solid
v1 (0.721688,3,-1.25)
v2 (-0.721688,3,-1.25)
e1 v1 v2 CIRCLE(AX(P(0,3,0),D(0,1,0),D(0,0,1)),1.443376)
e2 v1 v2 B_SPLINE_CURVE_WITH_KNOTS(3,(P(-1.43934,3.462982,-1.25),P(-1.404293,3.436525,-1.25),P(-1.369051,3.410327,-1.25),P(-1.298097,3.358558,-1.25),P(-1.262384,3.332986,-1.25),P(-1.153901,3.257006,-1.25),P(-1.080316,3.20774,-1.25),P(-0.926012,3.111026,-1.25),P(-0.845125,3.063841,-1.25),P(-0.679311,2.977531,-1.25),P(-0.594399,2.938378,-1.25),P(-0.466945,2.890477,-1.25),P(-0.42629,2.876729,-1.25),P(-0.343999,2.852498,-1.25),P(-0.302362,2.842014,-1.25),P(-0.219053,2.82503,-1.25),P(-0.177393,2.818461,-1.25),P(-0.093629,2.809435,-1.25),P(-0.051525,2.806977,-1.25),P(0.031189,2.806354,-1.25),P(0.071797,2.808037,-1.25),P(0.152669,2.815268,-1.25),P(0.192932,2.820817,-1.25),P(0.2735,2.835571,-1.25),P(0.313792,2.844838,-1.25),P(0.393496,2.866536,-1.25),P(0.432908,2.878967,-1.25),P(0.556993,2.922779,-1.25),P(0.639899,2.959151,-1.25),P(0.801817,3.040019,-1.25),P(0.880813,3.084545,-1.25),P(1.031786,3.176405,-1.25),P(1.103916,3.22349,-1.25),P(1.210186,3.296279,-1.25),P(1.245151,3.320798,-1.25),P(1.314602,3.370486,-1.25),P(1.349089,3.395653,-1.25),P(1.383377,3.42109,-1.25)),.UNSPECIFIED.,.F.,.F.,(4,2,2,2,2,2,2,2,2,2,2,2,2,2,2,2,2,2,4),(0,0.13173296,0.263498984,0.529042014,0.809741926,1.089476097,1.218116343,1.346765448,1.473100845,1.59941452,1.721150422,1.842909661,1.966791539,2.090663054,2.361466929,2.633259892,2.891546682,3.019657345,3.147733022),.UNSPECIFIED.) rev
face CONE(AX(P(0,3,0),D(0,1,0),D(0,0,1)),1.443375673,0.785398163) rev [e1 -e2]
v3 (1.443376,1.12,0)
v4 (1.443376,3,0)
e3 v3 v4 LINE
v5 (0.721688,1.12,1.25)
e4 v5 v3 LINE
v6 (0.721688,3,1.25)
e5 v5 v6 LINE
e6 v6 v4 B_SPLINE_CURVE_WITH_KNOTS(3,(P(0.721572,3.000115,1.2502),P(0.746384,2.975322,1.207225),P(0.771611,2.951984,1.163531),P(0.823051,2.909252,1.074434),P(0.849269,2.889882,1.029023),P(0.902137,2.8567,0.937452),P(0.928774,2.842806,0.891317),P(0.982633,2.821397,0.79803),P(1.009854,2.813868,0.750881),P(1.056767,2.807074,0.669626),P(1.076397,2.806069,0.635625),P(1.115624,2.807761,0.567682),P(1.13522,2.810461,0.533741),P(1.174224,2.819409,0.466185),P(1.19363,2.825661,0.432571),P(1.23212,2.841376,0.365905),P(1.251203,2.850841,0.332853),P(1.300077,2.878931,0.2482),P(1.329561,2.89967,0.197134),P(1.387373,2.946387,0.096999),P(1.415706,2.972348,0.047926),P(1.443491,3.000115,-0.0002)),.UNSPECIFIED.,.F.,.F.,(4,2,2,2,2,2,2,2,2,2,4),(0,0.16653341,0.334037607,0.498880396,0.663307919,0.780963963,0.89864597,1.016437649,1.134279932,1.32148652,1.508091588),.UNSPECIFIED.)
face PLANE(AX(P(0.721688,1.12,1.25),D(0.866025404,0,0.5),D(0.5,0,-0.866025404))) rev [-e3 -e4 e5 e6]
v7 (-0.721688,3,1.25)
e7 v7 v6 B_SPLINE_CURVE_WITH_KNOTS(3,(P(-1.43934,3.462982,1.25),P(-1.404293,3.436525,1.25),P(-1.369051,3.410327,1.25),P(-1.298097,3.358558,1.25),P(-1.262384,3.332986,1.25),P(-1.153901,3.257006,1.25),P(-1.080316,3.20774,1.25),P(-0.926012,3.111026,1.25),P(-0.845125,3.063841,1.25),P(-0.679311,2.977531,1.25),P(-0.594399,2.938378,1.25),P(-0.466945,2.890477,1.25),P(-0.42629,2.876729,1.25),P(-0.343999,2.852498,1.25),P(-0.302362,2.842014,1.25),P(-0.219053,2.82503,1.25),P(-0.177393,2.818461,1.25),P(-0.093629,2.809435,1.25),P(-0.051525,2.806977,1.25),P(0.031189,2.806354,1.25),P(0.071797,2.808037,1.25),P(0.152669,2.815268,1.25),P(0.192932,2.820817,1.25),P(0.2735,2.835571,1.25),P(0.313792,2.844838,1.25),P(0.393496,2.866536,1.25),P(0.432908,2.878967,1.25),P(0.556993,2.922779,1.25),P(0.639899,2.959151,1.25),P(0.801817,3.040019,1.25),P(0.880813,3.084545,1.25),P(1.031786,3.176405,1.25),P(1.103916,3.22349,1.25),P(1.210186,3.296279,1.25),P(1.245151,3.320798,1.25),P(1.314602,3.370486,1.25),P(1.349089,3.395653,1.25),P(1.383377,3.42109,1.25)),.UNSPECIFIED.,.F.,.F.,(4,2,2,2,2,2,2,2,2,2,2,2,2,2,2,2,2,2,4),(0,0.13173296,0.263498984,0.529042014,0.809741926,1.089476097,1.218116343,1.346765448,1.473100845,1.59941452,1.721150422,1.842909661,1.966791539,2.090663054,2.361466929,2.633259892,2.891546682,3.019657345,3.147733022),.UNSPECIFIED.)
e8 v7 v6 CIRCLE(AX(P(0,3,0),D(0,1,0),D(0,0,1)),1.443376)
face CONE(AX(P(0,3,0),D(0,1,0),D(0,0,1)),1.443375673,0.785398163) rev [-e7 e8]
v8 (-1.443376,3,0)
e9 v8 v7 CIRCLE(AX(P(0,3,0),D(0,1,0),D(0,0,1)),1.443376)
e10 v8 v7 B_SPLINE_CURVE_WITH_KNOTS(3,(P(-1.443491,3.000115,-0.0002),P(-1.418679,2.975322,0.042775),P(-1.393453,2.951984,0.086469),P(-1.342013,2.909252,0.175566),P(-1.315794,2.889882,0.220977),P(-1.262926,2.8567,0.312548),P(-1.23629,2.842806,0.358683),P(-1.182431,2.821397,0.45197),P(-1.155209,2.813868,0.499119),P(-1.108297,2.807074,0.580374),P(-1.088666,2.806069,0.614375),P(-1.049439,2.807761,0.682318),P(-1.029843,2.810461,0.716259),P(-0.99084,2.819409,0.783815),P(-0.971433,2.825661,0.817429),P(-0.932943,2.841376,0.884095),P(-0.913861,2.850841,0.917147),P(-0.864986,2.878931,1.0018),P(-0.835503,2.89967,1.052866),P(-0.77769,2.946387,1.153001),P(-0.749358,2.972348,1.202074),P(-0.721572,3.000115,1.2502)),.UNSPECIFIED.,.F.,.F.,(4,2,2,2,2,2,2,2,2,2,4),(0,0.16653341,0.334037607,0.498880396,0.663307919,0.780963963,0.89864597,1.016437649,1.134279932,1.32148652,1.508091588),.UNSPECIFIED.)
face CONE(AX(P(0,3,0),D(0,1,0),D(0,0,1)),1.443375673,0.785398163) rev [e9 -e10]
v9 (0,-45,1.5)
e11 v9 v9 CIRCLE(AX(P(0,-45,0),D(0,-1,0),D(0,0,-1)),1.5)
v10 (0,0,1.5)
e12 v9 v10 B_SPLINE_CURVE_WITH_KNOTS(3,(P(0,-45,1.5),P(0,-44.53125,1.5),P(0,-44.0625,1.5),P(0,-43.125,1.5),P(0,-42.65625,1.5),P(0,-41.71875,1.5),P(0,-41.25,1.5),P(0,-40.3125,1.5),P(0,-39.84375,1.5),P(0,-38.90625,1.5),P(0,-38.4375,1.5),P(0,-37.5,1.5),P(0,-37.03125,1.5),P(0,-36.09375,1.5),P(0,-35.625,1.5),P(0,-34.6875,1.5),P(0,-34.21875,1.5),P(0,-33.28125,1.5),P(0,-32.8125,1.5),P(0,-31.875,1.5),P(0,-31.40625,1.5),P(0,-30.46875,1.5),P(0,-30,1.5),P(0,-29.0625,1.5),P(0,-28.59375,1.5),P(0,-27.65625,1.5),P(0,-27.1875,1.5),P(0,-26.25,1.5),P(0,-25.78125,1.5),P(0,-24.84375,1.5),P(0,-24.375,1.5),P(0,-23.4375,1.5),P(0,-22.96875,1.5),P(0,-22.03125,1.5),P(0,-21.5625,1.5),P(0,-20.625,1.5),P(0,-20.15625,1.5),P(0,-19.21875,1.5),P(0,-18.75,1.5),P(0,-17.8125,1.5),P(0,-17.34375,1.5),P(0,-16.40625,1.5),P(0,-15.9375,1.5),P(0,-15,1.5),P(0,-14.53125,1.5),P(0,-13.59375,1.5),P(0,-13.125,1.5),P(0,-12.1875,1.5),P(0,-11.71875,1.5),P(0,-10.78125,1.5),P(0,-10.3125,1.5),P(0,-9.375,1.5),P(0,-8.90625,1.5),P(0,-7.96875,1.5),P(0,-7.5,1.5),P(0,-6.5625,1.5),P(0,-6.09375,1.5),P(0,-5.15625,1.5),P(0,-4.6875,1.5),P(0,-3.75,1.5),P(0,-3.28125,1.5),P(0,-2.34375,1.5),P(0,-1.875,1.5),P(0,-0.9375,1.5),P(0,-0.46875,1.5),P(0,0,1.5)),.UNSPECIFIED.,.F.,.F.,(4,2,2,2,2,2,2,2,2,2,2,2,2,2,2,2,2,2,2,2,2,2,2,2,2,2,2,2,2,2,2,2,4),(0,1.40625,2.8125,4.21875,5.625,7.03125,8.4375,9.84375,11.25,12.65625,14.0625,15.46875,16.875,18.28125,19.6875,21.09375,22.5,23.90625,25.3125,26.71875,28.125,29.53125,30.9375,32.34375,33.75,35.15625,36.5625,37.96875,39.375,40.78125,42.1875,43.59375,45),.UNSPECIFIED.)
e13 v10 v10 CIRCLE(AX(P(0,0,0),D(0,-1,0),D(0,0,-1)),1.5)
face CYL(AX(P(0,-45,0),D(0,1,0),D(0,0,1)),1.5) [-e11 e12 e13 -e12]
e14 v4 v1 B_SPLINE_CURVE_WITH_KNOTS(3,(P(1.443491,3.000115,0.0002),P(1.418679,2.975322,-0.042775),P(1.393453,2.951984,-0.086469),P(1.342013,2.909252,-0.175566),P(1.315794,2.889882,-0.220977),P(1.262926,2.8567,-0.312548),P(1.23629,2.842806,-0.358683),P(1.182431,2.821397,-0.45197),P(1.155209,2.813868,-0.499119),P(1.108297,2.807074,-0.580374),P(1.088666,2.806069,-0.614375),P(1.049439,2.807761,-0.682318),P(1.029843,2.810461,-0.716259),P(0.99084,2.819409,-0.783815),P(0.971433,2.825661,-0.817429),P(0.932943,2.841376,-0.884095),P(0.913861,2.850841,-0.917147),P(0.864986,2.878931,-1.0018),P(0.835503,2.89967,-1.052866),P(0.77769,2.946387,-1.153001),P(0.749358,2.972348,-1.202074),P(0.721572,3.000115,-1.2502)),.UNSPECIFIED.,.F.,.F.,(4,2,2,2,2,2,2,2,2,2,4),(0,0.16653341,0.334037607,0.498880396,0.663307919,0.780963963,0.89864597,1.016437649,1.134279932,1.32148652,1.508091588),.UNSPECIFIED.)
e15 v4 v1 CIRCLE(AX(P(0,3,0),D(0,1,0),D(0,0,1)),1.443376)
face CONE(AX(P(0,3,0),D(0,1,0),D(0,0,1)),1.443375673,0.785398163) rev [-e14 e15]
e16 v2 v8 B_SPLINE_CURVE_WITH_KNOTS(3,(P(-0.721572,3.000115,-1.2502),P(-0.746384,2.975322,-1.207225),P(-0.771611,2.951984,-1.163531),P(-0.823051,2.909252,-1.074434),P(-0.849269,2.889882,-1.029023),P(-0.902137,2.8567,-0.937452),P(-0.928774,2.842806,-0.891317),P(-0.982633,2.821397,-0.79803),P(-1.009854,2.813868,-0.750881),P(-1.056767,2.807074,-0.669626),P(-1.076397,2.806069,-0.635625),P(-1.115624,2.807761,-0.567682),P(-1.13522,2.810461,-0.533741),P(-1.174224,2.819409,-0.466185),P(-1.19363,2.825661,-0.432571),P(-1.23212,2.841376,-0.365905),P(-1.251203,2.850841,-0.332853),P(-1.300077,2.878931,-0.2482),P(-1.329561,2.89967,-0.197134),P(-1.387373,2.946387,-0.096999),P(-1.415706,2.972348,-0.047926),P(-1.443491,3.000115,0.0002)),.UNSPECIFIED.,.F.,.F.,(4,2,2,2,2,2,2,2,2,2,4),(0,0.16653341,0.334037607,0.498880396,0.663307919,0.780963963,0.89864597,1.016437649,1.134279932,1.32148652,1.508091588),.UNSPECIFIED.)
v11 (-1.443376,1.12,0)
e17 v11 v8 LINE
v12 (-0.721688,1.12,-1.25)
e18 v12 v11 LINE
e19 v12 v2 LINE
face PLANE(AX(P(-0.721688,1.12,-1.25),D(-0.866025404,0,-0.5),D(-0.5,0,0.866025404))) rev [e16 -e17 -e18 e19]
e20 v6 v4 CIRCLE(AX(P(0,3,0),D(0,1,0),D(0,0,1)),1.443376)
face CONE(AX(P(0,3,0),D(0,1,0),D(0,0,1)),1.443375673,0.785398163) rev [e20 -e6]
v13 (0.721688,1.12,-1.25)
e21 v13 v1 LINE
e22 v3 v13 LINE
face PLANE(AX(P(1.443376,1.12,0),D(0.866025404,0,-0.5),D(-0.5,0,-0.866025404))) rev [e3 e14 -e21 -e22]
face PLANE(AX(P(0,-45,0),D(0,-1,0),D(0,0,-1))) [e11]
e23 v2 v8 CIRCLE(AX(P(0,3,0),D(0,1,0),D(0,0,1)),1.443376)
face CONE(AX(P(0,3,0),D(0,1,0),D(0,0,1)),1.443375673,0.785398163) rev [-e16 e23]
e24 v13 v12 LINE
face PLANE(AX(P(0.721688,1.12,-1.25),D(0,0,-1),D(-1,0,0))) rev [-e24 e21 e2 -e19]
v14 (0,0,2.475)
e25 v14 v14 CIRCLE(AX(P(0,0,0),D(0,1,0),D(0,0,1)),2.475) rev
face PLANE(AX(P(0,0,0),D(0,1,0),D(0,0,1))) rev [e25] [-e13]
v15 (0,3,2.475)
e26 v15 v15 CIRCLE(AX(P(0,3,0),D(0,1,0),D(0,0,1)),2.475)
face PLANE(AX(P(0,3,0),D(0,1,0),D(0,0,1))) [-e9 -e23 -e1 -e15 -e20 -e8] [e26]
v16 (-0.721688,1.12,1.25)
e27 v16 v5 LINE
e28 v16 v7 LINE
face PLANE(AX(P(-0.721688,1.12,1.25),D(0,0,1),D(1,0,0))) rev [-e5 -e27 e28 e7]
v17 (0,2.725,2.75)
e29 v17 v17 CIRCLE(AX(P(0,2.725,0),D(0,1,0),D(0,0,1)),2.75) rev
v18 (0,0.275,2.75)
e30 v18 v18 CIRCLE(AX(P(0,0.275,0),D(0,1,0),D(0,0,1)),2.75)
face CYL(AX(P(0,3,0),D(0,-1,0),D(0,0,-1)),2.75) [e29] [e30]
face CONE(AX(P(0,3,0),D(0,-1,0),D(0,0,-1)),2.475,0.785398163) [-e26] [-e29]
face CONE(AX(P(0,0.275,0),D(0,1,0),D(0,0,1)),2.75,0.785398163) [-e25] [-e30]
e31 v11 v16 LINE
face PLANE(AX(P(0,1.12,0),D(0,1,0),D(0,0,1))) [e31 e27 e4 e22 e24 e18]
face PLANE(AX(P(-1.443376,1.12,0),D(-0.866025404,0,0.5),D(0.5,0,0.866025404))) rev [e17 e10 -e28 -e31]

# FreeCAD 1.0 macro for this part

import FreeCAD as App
import Part
import Sketcher
from FreeCAD import Vector
Q = App.Units.Quantity


def edges_at(feature, points):
    """Names of the edges that pass closest to the given points."""
    edges = feature.Shape.Edges
    near = lambda p: min(range(len(edges)), key=lambda i: edges[i].distToShape(Part.Vertex(*p))[0])
    return sorted({f"Edge{near(p) + 1}" for p in points})


def add_polygon(sketch, points):
    """Adds a closed chain of lines whose ends are joined by coincident constraints."""
    first, n = sketch.GeometryCount, len(points)
    for a, b in zip(points, points[1:] + points[:1]):
        sketch.addGeometry(Part.LineSegment(App.Vector(*a, 0), App.Vector(*b, 0)), False)
    for i in range(n):
        sketch.addConstraint(Sketcher.Constraint("Coincident", first + i, 2, first + (i + 1) % n, 1))

doc = App.newDocument("Part")
params = doc.addObject("Spreadsheet::Sheet", "Params")
for row, (alias, value) in enumerate([
    ("sketch1_diameter", "5.5 mm"),
    ("pad1_length", "3 mm"),
    ("pocket1_length", "1.88 mm"),
    ("groove_angle", "360 deg"),
    ("chamfer_size", "0.275 mm"),
    ("sketch4_diameter", "3 mm"),
    ("pad2_length", "45 mm"),
], start=1):
    params.set(f"A{row}", alias)
    params.set(f"B{row}", "=" + value)
    params.setAlias(f"B{row}", alias)

body = doc.addObject("PartDesign::Body", "Body")

sketch1 = doc.addObject("Sketcher::SketchObject", "Sketch")
body.addObject(sketch1)
sketch1.AttachmentSupport = (doc.XZ_Plane, [""])
sketch1.MapMode = "FlatFace"
sketch1.addGeometry(Part.Circle(Vector(0, 0, 0), Vector(0, 0, 1), 2.75), False)
sketch1.addConstraint([
    Sketcher.Constraint("Coincident", 0, 3, -1, 1),
    Sketcher.Constraint("Diameter", 0, Q("5.5 mm")),
])
sketch1.setExpression("Constraints[1]", "Params.sketch1_diameter")
pad1 = doc.addObject("PartDesign::Pad", "Pad")
body.addObject(pad1)
pad1.Profile = sketch1
pad1.setExpression("Length", "Params.pad1_length")
pad1.Reversed = True

sketch2 = doc.addObject("Sketcher::SketchObject", "Sketch001")
body.addObject(sketch2)
sketch2.AttachmentSupport = (doc.XZ_Plane, [""])
sketch2.MapMode = "FlatFace"
sketch2.AttachmentOffset = App.Placement(Vector(0, 0, -3), App.Rotation())
add_polygon(sketch2, [(0.721688, -1.25), (-0.721688, -1.25), (-1.443376, 0), (-0.721688, 1.25), (0.721688, 1.25), (1.443376, 0)])
sketch2.addConstraint([
    Sketcher.Constraint("Horizontal", 0),
    Sketcher.Constraint("Horizontal", 3),
    Sketcher.Constraint("Symmetric", 0, 2, 3, 2, -1, 1),
    Sketcher.Constraint("Symmetric", 1, 2, 4, 2, -1, 1),
    Sketcher.Constraint("PointOnObject", 1, 2, -1),
    Sketcher.Constraint("Parallel", 2, 5),
    Sketcher.Constraint("Vertical", 0, 2, 2, 2),
    Sketcher.Constraint("Angle", 1, Q("120 deg")),
    Sketcher.Constraint("DistanceY", 0, 2, 2, 2, Q("2.5 mm")),
    Sketcher.Constraint("DistanceX", 0, 2, 0, 1, Q("1.443376 mm")),
])
pocket1 = doc.addObject("PartDesign::Pocket", "Pocket")
body.addObject(pocket1)
pocket1.Profile = sketch2
pocket1.setExpression("Length", "Params.pocket1_length")
pocket1.Reversed = True

sketch3 = doc.addObject("Sketcher::SketchObject", "Sketch002")
body.addObject(sketch3)
sketch3.AttachmentSupport = (doc.YZ_Plane, [""])
sketch3.MapMode = "FlatFace"
add_polygon(sketch3, [(3, 0), (3, 1.443376), (1.556624, 0)])
sketch3.addConstraint([
    Sketcher.Constraint("Vertical", 0),
    Sketcher.Constraint("Horizontal", 2),
    Sketcher.Constraint("PointOnObject", 1, 2, -1),
    Sketcher.Constraint("Equal", 2, 0),
    Sketcher.Constraint("DistanceX", -1, 1, 0, 2, Q("3 mm")),
    Sketcher.Constraint("Distance", 1, Q("2.041241 mm")),
])
groove = doc.addObject("PartDesign::Groove", "Groove")
body.addObject(groove)
groove.Profile = sketch3
groove.ReferenceAxis = (sketch3, ["H_Axis"])
groove.setExpression("Angle", "Params.groove_angle")
doc.recompute()

chamfer = doc.addObject("PartDesign::Chamfer", "Chamfer")
body.addObject(chamfer)
chamfer.Base = (groove, edges_at(groove, [(0, 0, -2.75), (0, 3, -2.75)]))
chamfer.setExpression("Size", "Params.chamfer_size")

sketch4 = doc.addObject("Sketcher::SketchObject", "Sketch003")
body.addObject(sketch4)
sketch4.AttachmentSupport = (doc.XZ_Plane, [""])
sketch4.MapMode = "FlatFace"
sketch4.addGeometry(Part.Circle(Vector(0, 0, 0), Vector(0, 0, 1), 1.5), False)
sketch4.addConstraint([
    Sketcher.Constraint("Coincident", 0, 3, -1, 1),
    Sketcher.Constraint("Diameter", 0, Q("3 mm")),
])
sketch4.setExpression("Constraints[1]", "Params.sketch4_diameter")
pad2 = doc.addObject("PartDesign::Pad", "Pad001")
body.addObject(pad2)
pad2.Profile = sketch4
pad2.setExpression("Length", "Params.pad2_length")

doc.recompute()
